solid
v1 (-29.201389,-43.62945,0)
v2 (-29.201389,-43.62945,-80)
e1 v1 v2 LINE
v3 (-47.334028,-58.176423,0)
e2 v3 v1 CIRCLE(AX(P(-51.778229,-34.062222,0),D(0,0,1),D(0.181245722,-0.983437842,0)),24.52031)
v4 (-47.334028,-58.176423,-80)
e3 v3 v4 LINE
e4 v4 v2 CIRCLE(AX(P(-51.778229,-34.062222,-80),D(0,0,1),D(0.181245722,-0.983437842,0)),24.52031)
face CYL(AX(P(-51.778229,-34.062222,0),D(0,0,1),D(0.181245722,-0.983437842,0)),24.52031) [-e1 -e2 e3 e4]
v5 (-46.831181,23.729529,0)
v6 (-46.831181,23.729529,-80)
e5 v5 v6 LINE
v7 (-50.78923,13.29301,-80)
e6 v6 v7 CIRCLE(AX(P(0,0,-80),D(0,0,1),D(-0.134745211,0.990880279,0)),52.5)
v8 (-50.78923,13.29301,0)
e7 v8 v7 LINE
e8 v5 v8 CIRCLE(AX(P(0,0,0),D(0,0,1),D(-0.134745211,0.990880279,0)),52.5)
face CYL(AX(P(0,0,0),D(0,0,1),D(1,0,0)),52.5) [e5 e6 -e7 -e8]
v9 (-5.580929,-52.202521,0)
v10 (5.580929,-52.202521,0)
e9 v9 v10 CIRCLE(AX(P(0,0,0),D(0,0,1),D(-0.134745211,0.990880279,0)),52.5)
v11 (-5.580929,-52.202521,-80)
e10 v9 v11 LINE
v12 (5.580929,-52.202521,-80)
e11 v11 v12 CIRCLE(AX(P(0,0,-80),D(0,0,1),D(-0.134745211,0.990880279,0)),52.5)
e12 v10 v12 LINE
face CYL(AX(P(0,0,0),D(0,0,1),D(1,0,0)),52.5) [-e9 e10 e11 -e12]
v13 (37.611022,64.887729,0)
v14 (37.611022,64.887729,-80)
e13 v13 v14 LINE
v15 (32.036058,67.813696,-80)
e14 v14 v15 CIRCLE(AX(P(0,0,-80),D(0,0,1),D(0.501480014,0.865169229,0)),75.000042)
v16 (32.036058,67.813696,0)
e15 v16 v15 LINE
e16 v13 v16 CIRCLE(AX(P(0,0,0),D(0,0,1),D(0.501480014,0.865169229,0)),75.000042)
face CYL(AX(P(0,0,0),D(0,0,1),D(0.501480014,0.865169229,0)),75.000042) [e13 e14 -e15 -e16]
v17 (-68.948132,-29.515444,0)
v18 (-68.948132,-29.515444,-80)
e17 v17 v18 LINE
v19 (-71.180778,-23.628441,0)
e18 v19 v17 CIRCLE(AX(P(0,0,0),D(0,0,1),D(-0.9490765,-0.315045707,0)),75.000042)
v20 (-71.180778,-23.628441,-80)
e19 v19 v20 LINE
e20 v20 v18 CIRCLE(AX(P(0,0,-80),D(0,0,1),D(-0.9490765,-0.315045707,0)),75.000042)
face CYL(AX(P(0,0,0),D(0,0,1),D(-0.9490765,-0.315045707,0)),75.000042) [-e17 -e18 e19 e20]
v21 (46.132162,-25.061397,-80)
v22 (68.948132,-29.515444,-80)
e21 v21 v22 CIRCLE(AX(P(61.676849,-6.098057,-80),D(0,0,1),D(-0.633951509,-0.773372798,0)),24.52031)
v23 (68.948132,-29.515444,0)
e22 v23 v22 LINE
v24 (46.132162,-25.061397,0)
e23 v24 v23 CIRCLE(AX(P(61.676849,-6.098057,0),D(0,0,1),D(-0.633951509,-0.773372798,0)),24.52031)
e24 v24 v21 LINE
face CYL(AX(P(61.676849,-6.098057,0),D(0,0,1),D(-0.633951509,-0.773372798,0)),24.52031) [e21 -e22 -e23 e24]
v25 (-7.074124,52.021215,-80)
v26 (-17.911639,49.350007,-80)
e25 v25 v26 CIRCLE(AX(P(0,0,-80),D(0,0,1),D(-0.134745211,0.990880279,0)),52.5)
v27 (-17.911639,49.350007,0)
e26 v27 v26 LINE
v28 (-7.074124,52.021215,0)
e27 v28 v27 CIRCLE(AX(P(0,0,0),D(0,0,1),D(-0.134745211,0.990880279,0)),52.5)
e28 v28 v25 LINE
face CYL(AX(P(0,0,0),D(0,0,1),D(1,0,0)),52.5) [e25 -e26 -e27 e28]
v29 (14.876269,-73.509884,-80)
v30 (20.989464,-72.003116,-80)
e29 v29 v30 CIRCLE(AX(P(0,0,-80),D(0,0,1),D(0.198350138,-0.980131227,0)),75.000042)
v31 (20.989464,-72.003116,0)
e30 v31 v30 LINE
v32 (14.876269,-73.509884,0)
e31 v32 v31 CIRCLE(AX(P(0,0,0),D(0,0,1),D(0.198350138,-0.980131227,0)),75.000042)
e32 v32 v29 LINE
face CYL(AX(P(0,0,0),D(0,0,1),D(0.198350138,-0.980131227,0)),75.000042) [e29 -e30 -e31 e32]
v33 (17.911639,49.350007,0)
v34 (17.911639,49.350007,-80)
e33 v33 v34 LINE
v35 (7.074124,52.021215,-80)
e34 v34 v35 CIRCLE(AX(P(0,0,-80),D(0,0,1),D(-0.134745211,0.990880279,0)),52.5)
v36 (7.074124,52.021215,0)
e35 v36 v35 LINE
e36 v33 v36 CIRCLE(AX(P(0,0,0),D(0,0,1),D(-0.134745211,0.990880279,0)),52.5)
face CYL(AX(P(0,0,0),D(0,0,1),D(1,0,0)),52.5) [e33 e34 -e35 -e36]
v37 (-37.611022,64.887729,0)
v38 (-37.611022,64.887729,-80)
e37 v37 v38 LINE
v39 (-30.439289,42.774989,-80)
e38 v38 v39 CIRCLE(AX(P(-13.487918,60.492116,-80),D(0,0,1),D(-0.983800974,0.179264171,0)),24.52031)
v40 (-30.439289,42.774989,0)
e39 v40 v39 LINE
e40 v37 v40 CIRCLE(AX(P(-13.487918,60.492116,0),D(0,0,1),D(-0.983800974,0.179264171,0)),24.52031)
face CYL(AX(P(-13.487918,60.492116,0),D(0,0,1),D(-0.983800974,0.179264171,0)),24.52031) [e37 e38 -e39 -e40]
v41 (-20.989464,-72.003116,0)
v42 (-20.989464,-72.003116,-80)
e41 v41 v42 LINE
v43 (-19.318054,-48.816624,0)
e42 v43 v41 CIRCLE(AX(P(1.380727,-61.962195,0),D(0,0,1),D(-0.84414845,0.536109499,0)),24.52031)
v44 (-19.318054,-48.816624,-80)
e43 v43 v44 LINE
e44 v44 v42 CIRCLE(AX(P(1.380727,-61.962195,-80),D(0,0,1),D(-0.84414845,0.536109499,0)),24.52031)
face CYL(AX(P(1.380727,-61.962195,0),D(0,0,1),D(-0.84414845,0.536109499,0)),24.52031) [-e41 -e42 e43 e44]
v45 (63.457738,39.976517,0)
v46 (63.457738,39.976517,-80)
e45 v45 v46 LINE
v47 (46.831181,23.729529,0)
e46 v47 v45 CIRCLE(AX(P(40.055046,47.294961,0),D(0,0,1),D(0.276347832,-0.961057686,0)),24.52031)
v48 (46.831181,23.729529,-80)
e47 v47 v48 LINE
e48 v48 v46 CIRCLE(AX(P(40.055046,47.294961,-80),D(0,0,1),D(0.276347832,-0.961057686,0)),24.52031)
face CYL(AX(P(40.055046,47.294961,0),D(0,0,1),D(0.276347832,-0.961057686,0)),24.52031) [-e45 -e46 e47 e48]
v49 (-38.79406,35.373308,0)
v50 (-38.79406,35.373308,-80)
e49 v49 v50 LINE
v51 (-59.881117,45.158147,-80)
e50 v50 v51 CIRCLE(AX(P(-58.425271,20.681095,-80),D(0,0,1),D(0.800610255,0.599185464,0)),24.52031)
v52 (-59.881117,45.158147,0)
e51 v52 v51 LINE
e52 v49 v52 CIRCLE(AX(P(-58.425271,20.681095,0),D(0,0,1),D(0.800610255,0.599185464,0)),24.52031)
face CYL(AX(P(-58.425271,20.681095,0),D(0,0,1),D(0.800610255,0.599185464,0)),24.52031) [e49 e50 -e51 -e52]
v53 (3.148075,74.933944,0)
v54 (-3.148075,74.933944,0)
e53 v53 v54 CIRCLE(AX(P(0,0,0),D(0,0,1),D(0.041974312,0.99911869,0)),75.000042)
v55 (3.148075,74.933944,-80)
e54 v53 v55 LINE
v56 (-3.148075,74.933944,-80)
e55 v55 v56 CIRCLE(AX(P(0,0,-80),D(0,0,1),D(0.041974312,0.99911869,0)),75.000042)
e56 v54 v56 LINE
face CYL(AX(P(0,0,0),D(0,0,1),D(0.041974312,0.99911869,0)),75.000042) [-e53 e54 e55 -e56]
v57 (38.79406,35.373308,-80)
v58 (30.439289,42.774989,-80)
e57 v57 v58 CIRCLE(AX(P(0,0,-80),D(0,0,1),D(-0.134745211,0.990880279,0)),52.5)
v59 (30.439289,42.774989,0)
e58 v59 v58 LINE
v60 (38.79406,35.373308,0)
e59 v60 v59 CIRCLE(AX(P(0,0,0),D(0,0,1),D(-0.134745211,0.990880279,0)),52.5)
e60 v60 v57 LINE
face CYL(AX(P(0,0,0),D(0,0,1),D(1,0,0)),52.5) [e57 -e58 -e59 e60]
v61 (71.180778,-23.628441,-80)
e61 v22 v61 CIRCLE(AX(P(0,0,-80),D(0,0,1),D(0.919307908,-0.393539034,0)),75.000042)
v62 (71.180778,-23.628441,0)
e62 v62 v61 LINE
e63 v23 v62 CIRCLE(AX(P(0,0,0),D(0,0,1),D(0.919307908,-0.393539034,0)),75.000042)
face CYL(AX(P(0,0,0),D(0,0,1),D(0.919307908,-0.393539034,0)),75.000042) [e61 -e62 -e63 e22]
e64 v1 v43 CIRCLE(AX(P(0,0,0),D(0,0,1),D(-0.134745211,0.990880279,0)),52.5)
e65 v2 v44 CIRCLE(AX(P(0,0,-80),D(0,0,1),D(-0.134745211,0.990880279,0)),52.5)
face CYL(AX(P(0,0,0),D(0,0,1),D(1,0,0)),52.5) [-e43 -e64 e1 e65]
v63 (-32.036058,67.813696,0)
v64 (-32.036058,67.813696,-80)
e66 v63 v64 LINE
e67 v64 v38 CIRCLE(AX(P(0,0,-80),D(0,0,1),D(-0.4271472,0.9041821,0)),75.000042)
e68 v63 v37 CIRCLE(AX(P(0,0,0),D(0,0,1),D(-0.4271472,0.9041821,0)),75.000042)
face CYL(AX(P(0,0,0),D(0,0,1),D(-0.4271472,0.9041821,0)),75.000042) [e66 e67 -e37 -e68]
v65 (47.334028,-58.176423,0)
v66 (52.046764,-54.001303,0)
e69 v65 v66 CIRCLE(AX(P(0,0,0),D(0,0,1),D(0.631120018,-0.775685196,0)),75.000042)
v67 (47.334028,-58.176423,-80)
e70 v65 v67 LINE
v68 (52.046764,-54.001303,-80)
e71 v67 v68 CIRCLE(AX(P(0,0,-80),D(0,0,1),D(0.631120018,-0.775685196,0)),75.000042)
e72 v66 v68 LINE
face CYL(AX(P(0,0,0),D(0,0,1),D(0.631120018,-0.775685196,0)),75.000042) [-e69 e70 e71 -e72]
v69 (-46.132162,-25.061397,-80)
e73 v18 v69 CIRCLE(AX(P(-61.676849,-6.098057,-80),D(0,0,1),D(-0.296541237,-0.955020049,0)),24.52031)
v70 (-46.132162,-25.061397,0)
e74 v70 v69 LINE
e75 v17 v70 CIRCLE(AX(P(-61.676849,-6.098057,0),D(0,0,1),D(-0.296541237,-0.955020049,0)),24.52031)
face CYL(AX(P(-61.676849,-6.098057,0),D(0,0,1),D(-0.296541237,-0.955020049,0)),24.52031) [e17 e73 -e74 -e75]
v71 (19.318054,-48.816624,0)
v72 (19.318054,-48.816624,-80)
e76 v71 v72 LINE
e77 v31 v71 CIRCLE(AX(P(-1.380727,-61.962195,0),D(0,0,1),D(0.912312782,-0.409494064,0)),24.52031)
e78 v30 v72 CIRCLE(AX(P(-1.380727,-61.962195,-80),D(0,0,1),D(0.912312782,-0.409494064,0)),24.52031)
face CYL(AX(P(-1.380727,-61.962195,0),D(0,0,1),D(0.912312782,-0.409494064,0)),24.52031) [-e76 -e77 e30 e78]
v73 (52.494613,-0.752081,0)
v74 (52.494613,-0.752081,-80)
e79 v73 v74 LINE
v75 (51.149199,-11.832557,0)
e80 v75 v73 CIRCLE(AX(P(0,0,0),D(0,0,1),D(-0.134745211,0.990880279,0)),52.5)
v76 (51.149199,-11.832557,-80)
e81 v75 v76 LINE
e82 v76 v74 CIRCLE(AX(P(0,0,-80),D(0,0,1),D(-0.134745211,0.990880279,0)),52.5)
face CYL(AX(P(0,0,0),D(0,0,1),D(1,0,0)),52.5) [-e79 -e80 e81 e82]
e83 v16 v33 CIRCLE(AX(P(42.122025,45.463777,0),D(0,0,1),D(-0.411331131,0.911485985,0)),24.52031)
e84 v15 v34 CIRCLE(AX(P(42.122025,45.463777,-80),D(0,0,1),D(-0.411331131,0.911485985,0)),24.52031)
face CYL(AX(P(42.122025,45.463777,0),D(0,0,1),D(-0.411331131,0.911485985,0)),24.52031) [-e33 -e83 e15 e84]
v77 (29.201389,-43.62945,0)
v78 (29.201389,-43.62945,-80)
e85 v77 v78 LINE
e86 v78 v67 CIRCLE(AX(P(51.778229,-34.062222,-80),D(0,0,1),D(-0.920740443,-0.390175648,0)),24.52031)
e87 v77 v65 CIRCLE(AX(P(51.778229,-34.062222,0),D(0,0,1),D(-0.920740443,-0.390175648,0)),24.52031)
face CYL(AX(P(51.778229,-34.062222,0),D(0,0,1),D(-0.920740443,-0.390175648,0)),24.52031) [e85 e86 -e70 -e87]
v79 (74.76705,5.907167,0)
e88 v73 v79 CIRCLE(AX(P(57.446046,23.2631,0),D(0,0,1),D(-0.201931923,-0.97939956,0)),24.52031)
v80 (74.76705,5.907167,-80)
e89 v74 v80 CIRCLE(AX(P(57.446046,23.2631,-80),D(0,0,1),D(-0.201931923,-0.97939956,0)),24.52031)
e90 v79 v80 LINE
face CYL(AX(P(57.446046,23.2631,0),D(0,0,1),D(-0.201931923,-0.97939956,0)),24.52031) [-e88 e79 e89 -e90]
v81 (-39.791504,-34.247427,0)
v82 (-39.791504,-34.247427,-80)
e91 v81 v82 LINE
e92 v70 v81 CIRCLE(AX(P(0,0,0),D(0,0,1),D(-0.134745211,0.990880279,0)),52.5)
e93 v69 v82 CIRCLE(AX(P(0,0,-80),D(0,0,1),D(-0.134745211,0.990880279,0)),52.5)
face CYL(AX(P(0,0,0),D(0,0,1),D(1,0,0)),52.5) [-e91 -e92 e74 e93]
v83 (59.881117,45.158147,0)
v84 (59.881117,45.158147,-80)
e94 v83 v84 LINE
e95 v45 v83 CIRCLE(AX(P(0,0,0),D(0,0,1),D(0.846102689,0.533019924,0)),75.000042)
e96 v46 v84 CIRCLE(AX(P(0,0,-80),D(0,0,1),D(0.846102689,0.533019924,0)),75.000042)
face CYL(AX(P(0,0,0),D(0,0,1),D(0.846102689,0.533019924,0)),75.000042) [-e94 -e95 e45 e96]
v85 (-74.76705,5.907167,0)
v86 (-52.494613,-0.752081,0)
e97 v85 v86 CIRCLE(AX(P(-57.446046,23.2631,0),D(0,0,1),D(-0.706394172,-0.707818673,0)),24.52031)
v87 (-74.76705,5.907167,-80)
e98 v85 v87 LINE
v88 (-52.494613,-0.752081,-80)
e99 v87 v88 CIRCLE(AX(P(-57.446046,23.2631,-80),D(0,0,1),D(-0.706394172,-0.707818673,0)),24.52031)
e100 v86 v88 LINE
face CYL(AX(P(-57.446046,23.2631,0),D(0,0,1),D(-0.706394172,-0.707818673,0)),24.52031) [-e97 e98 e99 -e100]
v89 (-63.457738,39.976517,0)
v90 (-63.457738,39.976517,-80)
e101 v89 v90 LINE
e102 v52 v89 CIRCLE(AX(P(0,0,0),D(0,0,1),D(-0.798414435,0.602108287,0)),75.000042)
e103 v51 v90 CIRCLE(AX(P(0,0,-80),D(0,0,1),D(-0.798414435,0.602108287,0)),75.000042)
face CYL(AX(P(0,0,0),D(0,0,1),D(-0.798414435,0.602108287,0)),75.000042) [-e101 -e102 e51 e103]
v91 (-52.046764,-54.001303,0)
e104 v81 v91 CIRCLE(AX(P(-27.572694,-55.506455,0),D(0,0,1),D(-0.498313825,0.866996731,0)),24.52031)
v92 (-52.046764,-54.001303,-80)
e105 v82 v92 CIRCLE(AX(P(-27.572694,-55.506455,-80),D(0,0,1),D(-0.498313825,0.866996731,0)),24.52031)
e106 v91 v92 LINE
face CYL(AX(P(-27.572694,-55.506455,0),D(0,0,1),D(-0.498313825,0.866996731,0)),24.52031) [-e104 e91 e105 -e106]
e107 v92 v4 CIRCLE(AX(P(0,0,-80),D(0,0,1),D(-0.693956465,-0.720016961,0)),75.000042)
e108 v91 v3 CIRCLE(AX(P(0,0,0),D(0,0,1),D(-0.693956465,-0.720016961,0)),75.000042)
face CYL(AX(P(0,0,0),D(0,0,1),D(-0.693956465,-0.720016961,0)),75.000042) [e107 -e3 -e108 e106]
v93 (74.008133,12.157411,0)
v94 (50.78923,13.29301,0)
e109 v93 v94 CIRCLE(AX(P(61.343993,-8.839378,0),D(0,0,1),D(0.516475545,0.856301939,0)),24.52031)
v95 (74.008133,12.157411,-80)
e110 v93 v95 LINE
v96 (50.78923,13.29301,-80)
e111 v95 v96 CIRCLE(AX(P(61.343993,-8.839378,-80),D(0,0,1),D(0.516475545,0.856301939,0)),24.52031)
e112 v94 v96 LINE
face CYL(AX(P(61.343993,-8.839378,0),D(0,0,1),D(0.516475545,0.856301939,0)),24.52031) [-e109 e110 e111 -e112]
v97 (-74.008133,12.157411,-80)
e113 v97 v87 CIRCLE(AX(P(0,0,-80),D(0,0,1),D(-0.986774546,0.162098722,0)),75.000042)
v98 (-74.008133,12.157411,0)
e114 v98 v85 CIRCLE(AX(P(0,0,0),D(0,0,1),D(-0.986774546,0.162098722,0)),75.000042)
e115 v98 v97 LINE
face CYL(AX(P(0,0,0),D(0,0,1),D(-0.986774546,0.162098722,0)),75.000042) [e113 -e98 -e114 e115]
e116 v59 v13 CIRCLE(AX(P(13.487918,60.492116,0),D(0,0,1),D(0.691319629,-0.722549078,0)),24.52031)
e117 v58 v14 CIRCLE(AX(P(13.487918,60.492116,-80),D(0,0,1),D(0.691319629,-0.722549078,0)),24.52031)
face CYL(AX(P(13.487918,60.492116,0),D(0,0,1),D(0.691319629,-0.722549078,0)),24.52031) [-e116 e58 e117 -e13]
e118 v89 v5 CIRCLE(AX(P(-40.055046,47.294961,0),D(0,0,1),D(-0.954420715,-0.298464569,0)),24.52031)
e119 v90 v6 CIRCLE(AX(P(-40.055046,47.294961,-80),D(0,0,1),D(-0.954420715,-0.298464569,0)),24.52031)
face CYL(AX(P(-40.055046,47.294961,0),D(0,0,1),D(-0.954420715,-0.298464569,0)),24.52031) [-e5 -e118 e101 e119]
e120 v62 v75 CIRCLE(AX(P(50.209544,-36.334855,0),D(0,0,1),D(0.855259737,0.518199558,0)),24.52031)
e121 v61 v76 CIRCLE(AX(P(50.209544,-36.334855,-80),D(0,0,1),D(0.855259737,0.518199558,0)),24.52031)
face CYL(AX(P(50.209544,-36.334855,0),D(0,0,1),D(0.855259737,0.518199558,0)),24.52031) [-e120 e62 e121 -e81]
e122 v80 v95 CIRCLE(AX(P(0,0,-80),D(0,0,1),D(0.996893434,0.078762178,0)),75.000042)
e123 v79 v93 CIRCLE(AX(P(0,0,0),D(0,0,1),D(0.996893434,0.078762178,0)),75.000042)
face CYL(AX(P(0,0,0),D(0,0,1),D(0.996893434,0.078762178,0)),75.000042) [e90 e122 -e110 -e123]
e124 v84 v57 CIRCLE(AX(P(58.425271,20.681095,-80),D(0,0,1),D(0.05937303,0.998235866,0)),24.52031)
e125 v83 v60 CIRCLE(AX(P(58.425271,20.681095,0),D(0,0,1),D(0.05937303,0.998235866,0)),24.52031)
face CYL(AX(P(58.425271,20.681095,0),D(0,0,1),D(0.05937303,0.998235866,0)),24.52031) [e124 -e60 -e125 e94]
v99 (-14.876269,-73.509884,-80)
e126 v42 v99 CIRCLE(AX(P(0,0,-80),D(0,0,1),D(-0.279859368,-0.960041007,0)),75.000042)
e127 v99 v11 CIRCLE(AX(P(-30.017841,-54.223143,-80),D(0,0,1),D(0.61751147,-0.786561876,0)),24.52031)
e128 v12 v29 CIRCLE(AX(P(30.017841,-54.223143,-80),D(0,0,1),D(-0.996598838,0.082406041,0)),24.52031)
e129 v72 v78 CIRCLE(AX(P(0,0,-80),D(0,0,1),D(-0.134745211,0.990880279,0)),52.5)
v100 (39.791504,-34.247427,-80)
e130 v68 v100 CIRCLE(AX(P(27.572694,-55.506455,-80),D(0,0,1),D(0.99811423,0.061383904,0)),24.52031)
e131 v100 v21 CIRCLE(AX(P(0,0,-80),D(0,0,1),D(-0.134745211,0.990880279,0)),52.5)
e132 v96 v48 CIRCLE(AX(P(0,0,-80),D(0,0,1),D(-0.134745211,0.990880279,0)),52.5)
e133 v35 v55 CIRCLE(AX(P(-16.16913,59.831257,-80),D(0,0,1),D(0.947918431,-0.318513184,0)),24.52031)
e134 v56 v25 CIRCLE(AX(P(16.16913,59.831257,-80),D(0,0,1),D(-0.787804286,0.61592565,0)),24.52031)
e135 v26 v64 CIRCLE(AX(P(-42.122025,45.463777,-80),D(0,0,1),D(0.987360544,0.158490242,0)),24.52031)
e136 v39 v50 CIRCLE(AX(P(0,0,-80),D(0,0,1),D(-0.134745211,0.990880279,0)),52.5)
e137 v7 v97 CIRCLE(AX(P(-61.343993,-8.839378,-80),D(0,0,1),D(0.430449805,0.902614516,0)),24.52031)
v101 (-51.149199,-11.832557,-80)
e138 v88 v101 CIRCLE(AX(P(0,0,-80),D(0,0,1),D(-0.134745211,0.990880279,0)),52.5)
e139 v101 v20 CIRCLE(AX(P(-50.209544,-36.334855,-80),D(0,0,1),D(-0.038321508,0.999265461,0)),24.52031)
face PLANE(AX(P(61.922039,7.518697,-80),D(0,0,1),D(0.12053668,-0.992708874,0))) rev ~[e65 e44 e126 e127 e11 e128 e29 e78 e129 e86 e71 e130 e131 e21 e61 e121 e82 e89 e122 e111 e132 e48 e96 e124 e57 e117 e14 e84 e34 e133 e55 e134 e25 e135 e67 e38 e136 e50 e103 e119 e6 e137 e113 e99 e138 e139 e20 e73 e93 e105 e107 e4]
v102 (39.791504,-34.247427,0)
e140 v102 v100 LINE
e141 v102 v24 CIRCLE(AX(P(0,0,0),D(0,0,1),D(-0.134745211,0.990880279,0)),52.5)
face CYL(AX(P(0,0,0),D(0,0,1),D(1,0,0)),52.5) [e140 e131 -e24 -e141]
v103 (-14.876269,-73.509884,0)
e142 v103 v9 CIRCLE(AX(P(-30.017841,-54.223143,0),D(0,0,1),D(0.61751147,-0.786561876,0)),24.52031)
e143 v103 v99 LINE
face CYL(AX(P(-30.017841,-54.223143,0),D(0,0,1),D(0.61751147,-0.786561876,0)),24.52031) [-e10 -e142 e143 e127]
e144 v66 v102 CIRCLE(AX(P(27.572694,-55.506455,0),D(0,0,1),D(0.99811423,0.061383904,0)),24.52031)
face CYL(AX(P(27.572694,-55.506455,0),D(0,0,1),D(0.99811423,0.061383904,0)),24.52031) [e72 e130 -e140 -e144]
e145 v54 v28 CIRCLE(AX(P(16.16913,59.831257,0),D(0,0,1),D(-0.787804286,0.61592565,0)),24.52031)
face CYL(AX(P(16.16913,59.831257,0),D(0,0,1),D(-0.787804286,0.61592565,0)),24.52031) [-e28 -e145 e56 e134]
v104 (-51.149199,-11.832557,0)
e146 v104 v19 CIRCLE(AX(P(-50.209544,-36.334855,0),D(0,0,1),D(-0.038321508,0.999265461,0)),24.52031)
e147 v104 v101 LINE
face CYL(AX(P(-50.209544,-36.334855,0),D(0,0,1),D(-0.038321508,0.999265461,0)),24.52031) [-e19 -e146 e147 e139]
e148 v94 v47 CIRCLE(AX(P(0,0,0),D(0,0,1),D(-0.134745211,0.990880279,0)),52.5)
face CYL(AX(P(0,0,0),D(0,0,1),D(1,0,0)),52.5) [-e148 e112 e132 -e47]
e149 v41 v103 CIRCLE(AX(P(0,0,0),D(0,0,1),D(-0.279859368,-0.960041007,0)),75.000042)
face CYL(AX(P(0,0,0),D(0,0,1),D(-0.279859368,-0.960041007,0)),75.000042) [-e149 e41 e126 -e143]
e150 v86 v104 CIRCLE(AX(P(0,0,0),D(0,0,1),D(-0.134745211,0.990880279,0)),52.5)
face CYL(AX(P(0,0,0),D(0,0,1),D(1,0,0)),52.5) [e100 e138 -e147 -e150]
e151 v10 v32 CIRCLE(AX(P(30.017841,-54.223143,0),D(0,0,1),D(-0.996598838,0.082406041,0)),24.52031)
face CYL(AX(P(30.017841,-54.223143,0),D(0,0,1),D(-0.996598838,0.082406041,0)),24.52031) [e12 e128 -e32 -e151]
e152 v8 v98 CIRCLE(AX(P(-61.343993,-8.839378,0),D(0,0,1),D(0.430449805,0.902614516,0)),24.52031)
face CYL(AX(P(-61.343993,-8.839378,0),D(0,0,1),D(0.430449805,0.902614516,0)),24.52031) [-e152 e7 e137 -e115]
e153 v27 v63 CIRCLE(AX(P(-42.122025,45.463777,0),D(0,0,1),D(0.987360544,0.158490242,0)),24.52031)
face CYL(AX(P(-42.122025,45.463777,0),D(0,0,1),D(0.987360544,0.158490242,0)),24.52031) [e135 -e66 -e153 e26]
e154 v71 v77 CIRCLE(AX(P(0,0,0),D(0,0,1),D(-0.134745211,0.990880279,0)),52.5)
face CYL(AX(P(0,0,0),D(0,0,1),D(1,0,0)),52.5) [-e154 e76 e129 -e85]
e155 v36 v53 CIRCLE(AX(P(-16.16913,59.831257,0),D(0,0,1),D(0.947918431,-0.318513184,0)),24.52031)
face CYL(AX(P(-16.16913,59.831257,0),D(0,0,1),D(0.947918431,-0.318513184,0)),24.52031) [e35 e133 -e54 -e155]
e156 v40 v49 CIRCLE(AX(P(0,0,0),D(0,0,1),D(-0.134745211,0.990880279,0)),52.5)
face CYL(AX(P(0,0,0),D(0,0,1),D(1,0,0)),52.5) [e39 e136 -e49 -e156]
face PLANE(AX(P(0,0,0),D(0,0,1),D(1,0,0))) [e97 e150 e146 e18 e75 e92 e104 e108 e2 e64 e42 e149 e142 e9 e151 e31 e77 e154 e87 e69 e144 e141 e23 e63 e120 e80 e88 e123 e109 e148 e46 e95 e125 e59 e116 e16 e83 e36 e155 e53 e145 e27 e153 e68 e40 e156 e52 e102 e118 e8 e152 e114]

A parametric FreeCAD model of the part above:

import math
import FreeCAD as App
import Part
import Sketcher
from FreeCAD import Vector
Q = App.Units.Quantity

doc = App.newDocument("Part")
params = doc.addObject("Spreadsheet::Sheet", "Params")
for row, (alias, value) in enumerate([
    ("sketch1_diameter", "105 mm"),
    ("pad1_length", "80 mm"),
    ("pad2_length", "80 mm"),
], start=1):
    params.set(f"A{row}", alias)
    params.set(f"B{row}", "=" + value)
    params.setAlias(f"B{row}", alias)

body = doc.addObject("PartDesign::Body", "Body")

sketch1 = body.newObject("Sketcher::SketchObject", "Sketch")
sketch1.AttachmentSupport = (doc.getObject("XY_Plane"), [""])
sketch1.MapMode = "FlatFace"
sketch1.addGeometry(Part.Circle(Vector(0, 0, 0), Vector(0, 0, 1), 52.5), False)
sketch1.addConstraint([
    Sketcher.Constraint("Coincident", 0, 3, -1, 1),
    Sketcher.Constraint("Diameter", 0, Q("105 mm")),
])
sketch1.setExpression("Constraints[1]", "Params.sketch1_diameter")
pad1 = body.newObject("PartDesign::Pad", "Pad")
pad1.Profile = sketch1
pad1.setExpression("Length", "Params.pad1_length")
pad1.Reversed = True

sketch2 = body.newObject("Sketcher::SketchObject", "Sketch001")
sketch2.AttachmentSupport = (doc.getObject("XY_Plane"), [""])
sketch2.MapMode = "FlatFace"
sketch2.addGeometry([
    Part.LineSegment(Vector(-7.074124, 52.021215, 0), Vector(7.074124, 52.021215, 0)),
    Part.ArcOfCircle(Part.Circle(Vector(-16.16913, 59.831257, 0), Vector(0, 0, 1), 24.52031), math.radians(-18.573032), math.radians(38.01921)),
    Part.ArcOfCircle(Part.Circle(Vector(0, 0, 0), Vector(0, 0, 1), 75.000042), math.radians(87.594342), math.radians(92.405658)),
    Part.ArcOfCircle(Part.Circle(Vector(16.16913, 59.831257, 0), Vector(0, 0, 1), 24.52031), math.radians(141.98079), math.radians(198.573032)),
], False)
sketch2.addConstraint([
    Sketcher.Constraint("Coincident", 0, 2, 1, 1),
    Sketcher.Constraint("Coincident", 1, 2, 2, 1),
    Sketcher.Constraint("Coincident", 2, 2, 3, 1),
    Sketcher.Constraint("Coincident", 3, 2, 0, 1),
    Sketcher.Constraint("Horizontal", 0),
    Sketcher.Constraint("Coincident", 2, 3, -1, 1),
    Sketcher.Constraint("Equal", 1, 3),
    Sketcher.Constraint("Symmetric", 1, 3, 3, 3, -2),
    Sketcher.Constraint("Radius", 1, Q("24.52031 mm")),
    Sketcher.Constraint("Radius", 2, Q("75.000042 mm")),
    Sketcher.Constraint("DistanceX", 2, 2, 0, 2, Q("10.222199 mm")),
    Sketcher.Constraint("DistanceX", 0, 1, 0, 2, Q("14.148247 mm")),
    Sketcher.Constraint("DistanceX", 1, 3, -1, 1, Q("16.16913 mm")),
])
pad2 = body.newObject("PartDesign::Pad", "Pad001")
pad2.Profile = sketch2
pad2.setExpression("Length", "Params.pad2_length")
pad2.Reversed = True
doc.recompute()

polarpattern = body.newObject("PartDesign::PolarPattern", "PolarPattern")
polarpattern.Originals = [pad2]
polarpattern.Axis = (doc.getObject("Z_Axis"), [""])
polarpattern.Angle = 360
polarpattern.Occurrences = 13
body.Tip = polarpattern

doc.recompute()
